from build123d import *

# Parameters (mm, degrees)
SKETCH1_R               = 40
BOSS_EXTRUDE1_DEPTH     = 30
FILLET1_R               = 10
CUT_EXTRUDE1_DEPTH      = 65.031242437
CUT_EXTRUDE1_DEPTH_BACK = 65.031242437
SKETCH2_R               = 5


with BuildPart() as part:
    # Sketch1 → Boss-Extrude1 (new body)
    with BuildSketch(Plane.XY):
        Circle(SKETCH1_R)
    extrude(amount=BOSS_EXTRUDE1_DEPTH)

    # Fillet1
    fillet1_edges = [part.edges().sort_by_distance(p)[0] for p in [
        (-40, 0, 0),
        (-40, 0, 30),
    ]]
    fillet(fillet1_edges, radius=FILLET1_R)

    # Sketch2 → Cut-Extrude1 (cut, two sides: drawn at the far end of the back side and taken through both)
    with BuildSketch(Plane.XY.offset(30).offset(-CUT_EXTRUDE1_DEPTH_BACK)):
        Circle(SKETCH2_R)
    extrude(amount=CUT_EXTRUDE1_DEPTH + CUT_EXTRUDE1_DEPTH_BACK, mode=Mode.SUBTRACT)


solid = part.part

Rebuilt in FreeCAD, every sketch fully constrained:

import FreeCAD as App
import Part
import Sketcher

V = App.Vector


def edges_at(feature, points):
    """Names of the edges that pass closest to the given points."""
    edges = feature.Shape.Edges
    near = lambda p: min(range(len(edges)), key=lambda i: edges[i].distToShape(Part.Vertex(*p))[0])
    return sorted({f"Edge{near(p) + 1}" for p in points})

doc = App.newDocument("Part")
params = doc.addObject("Spreadsheet::Sheet", "Params")
for row, (alias, value) in enumerate([
    ("sketch1_diameter", "80 mm"),
    ("pad1_length", "30 mm"),
    ("fillet_radius", "10 mm"),
    ("sketch2_diameter", "10 mm"),
], start=1):
    params.set(f"A{row}", alias)
    params.set(f"B{row}", "=" + value)
    params.setAlias(f"B{row}", alias)

body = doc.addObject("PartDesign::Body", "Body")

# Sketch on XY plane
sketch1 = body.newObject("Sketcher::SketchObject", "Sketch")
sketch1.AttachmentSupport = (doc.getObject("XY_Plane"), [""])
sketch1.MapMode = "FlatFace"
sketch1.addGeometry(Part.Circle(V(0, 0, 0), V(0, 0, 1), 40), False)
sketch1.addConstraint(Sketcher.Constraint("Coincident", 0, 3, -1, 1))
sketch1.addConstraint(Sketcher.Constraint("Diameter", 0, 80.0))
sketch1.setExpression("Constraints[1]", "Params.sketch1_diameter")
pad1 = body.newObject("PartDesign::Pad", "Pad")
pad1.Profile = sketch1
pad1.setExpression("Length", "Params.pad1_length")
doc.recompute()

fillet = body.newObject("PartDesign::Fillet", "Fillet")
fillet.Base = (pad1, edges_at(pad1, [(-40, 0, 0), (-40, 0, 30)]))
fillet.setExpression("Radius", "Params.fillet_radius")

# Sketch on XY plane
sketch2 = body.newObject("Sketcher::SketchObject", "Sketch001")
sketch2.AttachmentSupport = (doc.getObject("XY_Plane"), [""])
sketch2.MapMode = "FlatFace"
sketch2.AttachmentOffset = App.Placement(V(0, 0, 30), App.Rotation())
sketch2.addGeometry(Part.Circle(V(0, 0, 0), V(0, 0, 1), 5), False)
sketch2.addConstraint(Sketcher.Constraint("Coincident", 0, 3, -1, 1))
sketch2.addConstraint(Sketcher.Constraint("Diameter", 0, 10.0))
sketch2.setExpression("Constraints[1]", "Params.sketch2_diameter")
pocket1 = body.newObject("PartDesign::Pocket", "Pocket")
pocket1.Profile = sketch2
pocket1.Type = "ThroughAll"
pocket1.Midplane = True

doc.recompute()
